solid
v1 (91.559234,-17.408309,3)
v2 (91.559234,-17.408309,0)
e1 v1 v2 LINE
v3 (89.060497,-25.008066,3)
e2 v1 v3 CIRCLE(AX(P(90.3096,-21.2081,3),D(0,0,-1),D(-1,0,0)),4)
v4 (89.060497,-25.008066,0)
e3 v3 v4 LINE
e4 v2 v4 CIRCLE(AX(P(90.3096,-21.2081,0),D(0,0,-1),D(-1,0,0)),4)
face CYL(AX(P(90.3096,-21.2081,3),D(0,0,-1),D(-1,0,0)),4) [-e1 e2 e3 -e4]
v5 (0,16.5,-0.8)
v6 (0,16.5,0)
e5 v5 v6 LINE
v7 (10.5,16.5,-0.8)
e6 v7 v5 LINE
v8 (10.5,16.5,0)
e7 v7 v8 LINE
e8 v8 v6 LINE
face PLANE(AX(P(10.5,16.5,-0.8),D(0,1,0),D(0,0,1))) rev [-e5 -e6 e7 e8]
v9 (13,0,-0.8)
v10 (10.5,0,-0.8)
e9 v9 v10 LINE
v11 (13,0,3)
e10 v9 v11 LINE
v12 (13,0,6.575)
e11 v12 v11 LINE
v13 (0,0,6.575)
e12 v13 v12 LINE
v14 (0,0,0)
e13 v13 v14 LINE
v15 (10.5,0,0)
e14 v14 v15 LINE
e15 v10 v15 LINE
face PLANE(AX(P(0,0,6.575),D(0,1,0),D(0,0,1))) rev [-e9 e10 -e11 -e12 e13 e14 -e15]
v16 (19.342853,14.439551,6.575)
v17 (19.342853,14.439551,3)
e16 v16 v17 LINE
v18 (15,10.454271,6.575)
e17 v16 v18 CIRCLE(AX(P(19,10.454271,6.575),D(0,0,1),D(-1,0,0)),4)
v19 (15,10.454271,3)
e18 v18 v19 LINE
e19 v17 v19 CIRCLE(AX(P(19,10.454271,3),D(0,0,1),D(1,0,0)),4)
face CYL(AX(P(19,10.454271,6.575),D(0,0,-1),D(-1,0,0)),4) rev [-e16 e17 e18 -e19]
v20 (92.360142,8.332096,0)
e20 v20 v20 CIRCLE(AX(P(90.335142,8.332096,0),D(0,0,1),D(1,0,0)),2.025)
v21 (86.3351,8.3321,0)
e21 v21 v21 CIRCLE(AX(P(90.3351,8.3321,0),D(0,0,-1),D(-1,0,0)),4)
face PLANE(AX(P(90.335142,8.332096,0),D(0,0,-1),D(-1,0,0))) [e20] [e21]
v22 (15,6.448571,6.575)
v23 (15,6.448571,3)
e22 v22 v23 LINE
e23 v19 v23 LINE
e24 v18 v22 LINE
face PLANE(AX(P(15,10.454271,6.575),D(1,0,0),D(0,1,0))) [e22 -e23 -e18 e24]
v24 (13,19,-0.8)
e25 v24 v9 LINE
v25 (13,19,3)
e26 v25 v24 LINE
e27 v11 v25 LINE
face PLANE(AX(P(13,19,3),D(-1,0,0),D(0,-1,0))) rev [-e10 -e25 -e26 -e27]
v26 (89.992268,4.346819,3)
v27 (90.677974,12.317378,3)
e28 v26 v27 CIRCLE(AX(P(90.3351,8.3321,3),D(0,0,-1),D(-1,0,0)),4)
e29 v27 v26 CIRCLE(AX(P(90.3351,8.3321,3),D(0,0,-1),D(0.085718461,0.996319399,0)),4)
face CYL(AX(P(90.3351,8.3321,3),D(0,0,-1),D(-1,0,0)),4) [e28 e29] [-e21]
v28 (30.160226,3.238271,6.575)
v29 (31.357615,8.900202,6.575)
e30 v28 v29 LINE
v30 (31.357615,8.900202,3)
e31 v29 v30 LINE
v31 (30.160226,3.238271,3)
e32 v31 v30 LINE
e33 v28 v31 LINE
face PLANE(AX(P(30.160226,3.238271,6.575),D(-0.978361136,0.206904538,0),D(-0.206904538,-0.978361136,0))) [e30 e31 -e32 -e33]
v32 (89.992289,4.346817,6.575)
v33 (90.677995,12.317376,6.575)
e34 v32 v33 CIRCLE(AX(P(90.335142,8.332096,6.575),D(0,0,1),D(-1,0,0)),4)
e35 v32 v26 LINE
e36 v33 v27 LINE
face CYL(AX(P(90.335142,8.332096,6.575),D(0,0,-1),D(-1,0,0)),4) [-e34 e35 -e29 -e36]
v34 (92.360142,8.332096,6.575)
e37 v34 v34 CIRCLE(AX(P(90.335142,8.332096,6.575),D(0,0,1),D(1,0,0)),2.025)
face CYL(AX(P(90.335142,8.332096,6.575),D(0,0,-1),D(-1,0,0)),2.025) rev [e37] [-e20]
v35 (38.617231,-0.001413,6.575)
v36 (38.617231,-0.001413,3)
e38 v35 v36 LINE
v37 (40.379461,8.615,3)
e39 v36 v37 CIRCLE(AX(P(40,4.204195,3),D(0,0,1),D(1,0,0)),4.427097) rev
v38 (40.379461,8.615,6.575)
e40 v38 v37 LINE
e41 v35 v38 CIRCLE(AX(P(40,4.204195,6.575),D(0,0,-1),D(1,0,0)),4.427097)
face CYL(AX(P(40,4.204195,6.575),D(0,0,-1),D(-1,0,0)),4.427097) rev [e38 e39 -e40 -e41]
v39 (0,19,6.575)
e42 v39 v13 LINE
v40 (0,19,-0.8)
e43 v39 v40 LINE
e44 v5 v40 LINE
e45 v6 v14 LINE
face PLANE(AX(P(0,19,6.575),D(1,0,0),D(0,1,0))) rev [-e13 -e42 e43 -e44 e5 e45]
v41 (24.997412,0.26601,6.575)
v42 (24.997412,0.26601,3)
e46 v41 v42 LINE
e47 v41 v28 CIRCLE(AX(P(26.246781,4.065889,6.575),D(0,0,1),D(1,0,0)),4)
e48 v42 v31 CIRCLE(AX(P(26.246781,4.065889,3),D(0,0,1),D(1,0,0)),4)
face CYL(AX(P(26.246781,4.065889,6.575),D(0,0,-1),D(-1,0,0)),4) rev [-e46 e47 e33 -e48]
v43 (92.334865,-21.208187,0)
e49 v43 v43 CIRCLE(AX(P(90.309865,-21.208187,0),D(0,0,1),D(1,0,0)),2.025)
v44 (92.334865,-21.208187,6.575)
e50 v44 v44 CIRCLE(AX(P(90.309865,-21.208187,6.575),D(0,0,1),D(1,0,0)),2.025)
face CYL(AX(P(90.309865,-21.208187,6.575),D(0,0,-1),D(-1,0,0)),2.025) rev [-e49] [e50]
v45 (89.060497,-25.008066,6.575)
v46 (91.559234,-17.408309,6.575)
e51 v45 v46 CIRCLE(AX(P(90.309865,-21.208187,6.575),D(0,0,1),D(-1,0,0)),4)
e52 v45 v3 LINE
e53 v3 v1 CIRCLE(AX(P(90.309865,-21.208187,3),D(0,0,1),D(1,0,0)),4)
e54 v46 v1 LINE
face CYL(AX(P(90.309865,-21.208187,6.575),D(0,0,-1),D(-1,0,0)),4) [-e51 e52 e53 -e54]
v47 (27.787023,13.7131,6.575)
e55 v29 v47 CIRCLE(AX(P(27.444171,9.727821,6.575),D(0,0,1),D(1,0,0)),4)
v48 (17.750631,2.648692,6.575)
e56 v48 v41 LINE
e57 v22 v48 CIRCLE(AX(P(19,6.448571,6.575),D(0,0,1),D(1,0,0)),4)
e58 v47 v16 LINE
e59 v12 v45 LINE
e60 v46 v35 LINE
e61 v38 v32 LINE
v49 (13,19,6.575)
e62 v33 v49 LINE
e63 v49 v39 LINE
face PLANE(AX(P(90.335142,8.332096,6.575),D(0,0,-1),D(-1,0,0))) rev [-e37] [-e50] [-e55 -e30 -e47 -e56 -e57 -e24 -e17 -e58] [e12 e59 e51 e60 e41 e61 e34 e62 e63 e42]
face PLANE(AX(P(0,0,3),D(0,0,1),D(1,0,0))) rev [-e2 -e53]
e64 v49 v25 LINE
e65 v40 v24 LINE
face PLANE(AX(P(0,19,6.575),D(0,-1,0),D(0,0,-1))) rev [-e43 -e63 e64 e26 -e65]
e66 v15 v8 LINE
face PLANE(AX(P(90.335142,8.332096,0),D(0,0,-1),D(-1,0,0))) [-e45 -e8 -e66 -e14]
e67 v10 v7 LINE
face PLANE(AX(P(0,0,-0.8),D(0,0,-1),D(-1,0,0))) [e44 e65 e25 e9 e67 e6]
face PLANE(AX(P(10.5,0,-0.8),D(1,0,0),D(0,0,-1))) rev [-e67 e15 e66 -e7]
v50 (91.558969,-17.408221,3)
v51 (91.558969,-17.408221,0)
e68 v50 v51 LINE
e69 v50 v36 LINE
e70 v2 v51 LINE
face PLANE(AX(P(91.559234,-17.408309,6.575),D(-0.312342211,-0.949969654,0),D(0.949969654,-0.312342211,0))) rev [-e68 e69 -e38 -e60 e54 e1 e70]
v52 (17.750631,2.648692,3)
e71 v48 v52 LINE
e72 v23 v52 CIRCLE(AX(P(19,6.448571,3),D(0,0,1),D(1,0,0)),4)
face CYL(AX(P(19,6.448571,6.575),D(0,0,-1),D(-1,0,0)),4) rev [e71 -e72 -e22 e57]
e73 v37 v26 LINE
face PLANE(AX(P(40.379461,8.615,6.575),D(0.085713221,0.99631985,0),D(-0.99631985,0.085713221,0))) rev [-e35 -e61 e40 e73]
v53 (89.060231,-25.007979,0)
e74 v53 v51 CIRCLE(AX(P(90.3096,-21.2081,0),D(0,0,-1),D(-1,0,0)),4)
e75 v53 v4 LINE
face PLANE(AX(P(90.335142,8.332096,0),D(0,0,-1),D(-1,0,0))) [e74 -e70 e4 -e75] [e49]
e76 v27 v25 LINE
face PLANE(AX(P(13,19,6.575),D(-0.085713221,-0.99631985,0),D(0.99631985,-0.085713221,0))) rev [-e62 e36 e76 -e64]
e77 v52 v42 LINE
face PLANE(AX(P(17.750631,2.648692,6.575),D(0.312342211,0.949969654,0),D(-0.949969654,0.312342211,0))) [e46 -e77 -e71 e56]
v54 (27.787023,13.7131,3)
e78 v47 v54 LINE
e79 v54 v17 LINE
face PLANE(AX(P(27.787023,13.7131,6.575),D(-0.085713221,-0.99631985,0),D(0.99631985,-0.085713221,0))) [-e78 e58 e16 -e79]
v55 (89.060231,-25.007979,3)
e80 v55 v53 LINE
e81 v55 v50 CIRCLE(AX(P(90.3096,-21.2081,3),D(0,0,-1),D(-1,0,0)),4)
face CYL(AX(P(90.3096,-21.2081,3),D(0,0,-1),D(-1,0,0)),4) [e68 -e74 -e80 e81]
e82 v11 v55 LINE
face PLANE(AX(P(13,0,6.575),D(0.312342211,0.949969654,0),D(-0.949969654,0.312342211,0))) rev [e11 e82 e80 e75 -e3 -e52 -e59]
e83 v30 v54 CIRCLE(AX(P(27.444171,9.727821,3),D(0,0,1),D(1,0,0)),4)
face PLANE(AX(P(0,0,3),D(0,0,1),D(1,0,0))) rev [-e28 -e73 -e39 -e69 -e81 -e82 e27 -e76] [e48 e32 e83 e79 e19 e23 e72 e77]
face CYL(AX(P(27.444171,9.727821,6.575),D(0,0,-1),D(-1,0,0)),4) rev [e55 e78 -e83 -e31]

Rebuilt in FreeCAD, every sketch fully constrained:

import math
import FreeCAD as App
import Part
import Sketcher
from FreeCAD import Vector
Q = App.Units.Quantity

doc = App.newDocument("Part")
body = doc.addObject("PartDesign::Body", "Body")

# Sketch on XY plane
sketch1 = body.newObject("Sketcher::SketchObject", "Sketch")
sketch1.AttachmentSupport = (doc.getObject("XY_Plane"), [""])
sketch1.MapMode = "FlatFace"
sketch1.addGeometry(Part.LineSegment(Vector(0, 19, 0), Vector(0, 0, 0)), False)
sketch1.addGeometry(Part.LineSegment(Vector(0, 0, 0), Vector(13, 0, 0)), False)
sketch1.addGeometry(Part.LineSegment(Vector(13, 0, 0), Vector(89.1, -25, 0)), False)
sketch1.addGeometry(Part.ArcOfCircle(Part.Circle(Vector(90.3, -21.2, 0), Vector(0, 0, 1), 4), math.radians(-108), math.radians(72)), False)
sketch1.addGeometry(Part.LineSegment(Vector(91.6, -17.4, 0), Vector(38.6, 0, 0)), False)
sketch1.addGeometry(Part.ArcOfCircle(Part.Circle(Vector(40, 4.2, 0), Vector(0, 0, 1), 4.4), math.radians(85), math.radians(252)), False)
sketch1.addGeometry(Part.LineSegment(Vector(40.4, 8.6, 0), Vector(90, 4.3, 0)), False)
sketch1.addGeometry(Part.ArcOfCircle(Part.Circle(Vector(90.3, 8.3, 0), Vector(0, 0, 1), 4), math.radians(-95), math.radians(85)), False)
sketch1.addGeometry(Part.LineSegment(Vector(90.7, 12.3, 0), Vector(13, 19, 0)), False)
sketch1.addGeometry(Part.LineSegment(Vector(13, 19, 0), Vector(0, 19, 0)), False)
sketch1.addGeometry(Part.Circle(Vector(90.3, -21.2, 0), Vector(0, 0, 1), 2), False)
sketch1.addGeometry(Part.LineSegment(Vector(15, 6.4, 0), Vector(15, 10.5, 0)), False)
sketch1.addGeometry(Part.ArcOfCircle(Part.Circle(Vector(19, 10.5, 0), Vector(0, 0, 1), 4), math.radians(85), math.radians(180)), False)
sketch1.addGeometry(Part.LineSegment(Vector(19.3, 14.4, 0), Vector(27.8, 13.7, 0)), False)
sketch1.addGeometry(Part.ArcOfCircle(Part.Circle(Vector(27.4, 9.7, 0), Vector(0, 0, 1), 4), math.radians(-12), math.radians(85)), False)
sketch1.addGeometry(Part.LineSegment(Vector(31.4, 8.9, 0), Vector(30.2, 3.2, 0)), False)
sketch1.addGeometry(Part.ArcOfCircle(Part.Circle(Vector(26.2, 4.1, 0), Vector(0, 0, 1), 4), math.radians(-108), math.radians(-12)), False)
sketch1.addGeometry(Part.LineSegment(Vector(25, 0.3, 0), Vector(17.8, 2.6, 0)), False)
sketch1.addGeometry(Part.ArcOfCircle(Part.Circle(Vector(19, 6.4, 0), Vector(0, 0, 1), 4), math.radians(180), math.radians(252)), False)
sketch1.addGeometry(Part.Circle(Vector(90.3, 8.3, 0), Vector(0, 0, 1), 2), False)
sketch1.addConstraint(Sketcher.Constraint("Coincident", 0, 2, 1, 1))
sketch1.addConstraint(Sketcher.Constraint("Coincident", 1, 2, 2, 1))
sketch1.addConstraint(Sketcher.Constraint("Tangent", 2, 2, 3, 1))
sketch1.addConstraint(Sketcher.Constraint("Tangent", 3, 2, 4, 1))
sketch1.addConstraint(Sketcher.Constraint("Tangent", 4, 2, 5, 2))
sketch1.addConstraint(Sketcher.Constraint("Tangent", 5, 1, 6, 1))
sketch1.addConstraint(Sketcher.Constraint("Tangent", 6, 2, 7, 1))
sketch1.addConstraint(Sketcher.Constraint("Tangent", 7, 2, 8, 1))
sketch1.addConstraint(Sketcher.Constraint("Coincident", 8, 2, 9, 1))
sketch1.addConstraint(Sketcher.Constraint("Coincident", 9, 2, 0, 1))
sketch1.addConstraint(Sketcher.Constraint("Tangent", 11, 2, 12, 2))
sketch1.addConstraint(Sketcher.Constraint("Tangent", 12, 1, 13, 1))
sketch1.addConstraint(Sketcher.Constraint("Tangent", 13, 2, 14, 2))
sketch1.addConstraint(Sketcher.Constraint("Tangent", 14, 1, 15, 1))
sketch1.addConstraint(Sketcher.Constraint("Tangent", 15, 2, 16, 2))
sketch1.addConstraint(Sketcher.Constraint("Tangent", 16, 1, 17, 1))
sketch1.addConstraint(Sketcher.Constraint("Tangent", 17, 2, 18, 2))
sketch1.addConstraint(Sketcher.Constraint("Tangent", 18, 1, 11, 1))
sketch1.addConstraint(Sketcher.Constraint("Vertical", 0))
sketch1.addConstraint(Sketcher.Constraint("Horizontal", 1))
sketch1.addConstraint(Sketcher.Constraint("Horizontal", 9))
sketch1.addConstraint(Sketcher.Constraint("Vertical", 11))
sketch1.addConstraint(Sketcher.Constraint("Coincident", 0, 2, -1, 1))
sketch1.addConstraint(Sketcher.Constraint("Coincident", 10, 3, 3, 3))
sketch1.addConstraint(Sketcher.Constraint("Coincident", 19, 3, 7, 3))
sketch1.addConstraint(Sketcher.Constraint("Equal", 3, 7))
sketch1.addConstraint(Sketcher.Constraint("Equal", 7, 12))
sketch1.addConstraint(Sketcher.Constraint("Equal", 12, 14))
sketch1.addConstraint(Sketcher.Constraint("Equal", 14, 16))
sketch1.addConstraint(Sketcher.Constraint("Equal", 16, 18))
sketch1.addConstraint(Sketcher.Constraint("Equal", 10, 19))
sketch1.addConstraint(Sketcher.Constraint("Parallel", 2, 4))
sketch1.addConstraint(Sketcher.Constraint("Parallel", 6, 8))
sketch1.addConstraint(Sketcher.Constraint("Parallel", 8, 13))
sketch1.addConstraint(Sketcher.Constraint("Parallel", 4, 17))
sketch1.addConstraint(Sketcher.Constraint("Vertical", 1, 2, 8, 2))
sketch1.addConstraint(Sketcher.Constraint("Radius", 3, Q("4 mm")))
sketch1.addConstraint(Sketcher.Constraint("Diameter", 10, Q("4.05 mm")))
sketch1.addConstraint(Sketcher.Constraint("DistanceX", 1, 1, 1, 2, Q("13 mm")))
sketch1.addConstraint(Sketcher.Constraint("DistanceY", 0, 2, 0, 1, Q("19 mm")))
sketch1.addConstraint(Sketcher.Constraint("DistanceX", -1, 1, 5, 3, Q("40 mm")))
sketch1.addConstraint(Sketcher.Constraint("DistanceX", -1, 1, 12, 3, Q("19 mm")))
sketch1.addConstraint(Sketcher.Constraint("DistanceY", 11, 1, 11, 2, Q("4.0057 mm")))
sketch1.addConstraint(Sketcher.Constraint("DistanceY", -1, 1, 5, 1, Q("8.615 mm")))
sketch1.addConstraint(Sketcher.Constraint("Radius", 5, Q("4.427097 mm")))
sketch1.addConstraint(Sketcher.Constraint("DistanceY", -1, 1, 13, 2, Q("13.7131 mm")))
sketch1.addConstraint(Sketcher.Constraint("DistanceY", 5, 3, 7, 3, Q("4.127901 mm")))
sketch1.addConstraint(Sketcher.Constraint("Distance", 2, Q("80.066238 mm")))
sketch1.addConstraint(Sketcher.Constraint("Distance", 13, Q("8.475361 mm")))
sketch1.addConstraint(Sketcher.Constraint("Distance", 15, Q("5.787159 mm")))
pad1 = body.newObject("PartDesign::Pad", "Pad")
pad1.Profile = sketch1
pad1.Length = 6.575

# Sketch on XY plane
sketch2 = body.newObject("Sketcher::SketchObject", "Sketch001")
sketch2.AttachmentSupport = (doc.getObject("XY_Plane"), [""])
sketch2.MapMode = "FlatFace"
sketch2.addGeometry(Part.LineSegment(Vector(98, 19, 0), Vector(98, -26, 0)), False)
sketch2.addGeometry(Part.LineSegment(Vector(98, -26, 0), Vector(13, -26, 0)), False)
sketch2.addGeometry(Part.LineSegment(Vector(13, -26, 0), Vector(13, 19, 0)), False)
sketch2.addGeometry(Part.LineSegment(Vector(13, 19, 0), Vector(98, 19, 0)), False)
sketch2.addGeometry(Part.Circle(Vector(90.3, -21.2, 0), Vector(0, 0, 1), 4), False)
sketch2.addGeometry(Part.Circle(Vector(90.3, 8.3, 0), Vector(0, 0, 1), 4), False)
sketch2.addConstraint(Sketcher.Constraint("Coincident", 0, 2, 1, 1))
sketch2.addConstraint(Sketcher.Constraint("Coincident", 1, 2, 2, 1))
sketch2.addConstraint(Sketcher.Constraint("Coincident", 2, 2, 3, 1))
sketch2.addConstraint(Sketcher.Constraint("Coincident", 3, 2, 0, 1))
sketch2.addConstraint(Sketcher.Constraint("Vertical", 0))
sketch2.addConstraint(Sketcher.Constraint("Horizontal", 1))
sketch2.addConstraint(Sketcher.Constraint("Vertical", 2))
sketch2.addConstraint(Sketcher.Constraint("Horizontal", 3))
sketch2.addConstraint(Sketcher.Constraint("Equal", 4, 5))
sketch2.addConstraint(Sketcher.Constraint("Diameter", 4, Q("8 mm")))
sketch2.addConstraint(Sketcher.Constraint("DistanceX", 1, 2, 1, 1, Q("85 mm")))
sketch2.addConstraint(Sketcher.Constraint("DistanceY", 0, 2, 0, 1, Q("45 mm")))
sketch2.addConstraint(Sketcher.Constraint("DistanceX", -1, 1, 0, 2, Q("98 mm")))
sketch2.addConstraint(Sketcher.Constraint("DistanceY", 0, 2, -1, 1, Q("26 mm")))
sketch2.addConstraint(Sketcher.Constraint("DistanceX", -1, 1, 4, 3, Q("90.3096 mm")))
sketch2.addConstraint(Sketcher.Constraint("DistanceY", 4, 3, -1, 1, Q("21.2081 mm")))
sketch2.addConstraint(Sketcher.Constraint("DistanceX", -1, 1, 5, 3, Q("90.3351 mm")))
sketch2.addConstraint(Sketcher.Constraint("DistanceY", -1, 1, 5, 3, Q("8.3321 mm")))
pocket1 = body.newObject("PartDesign::Pocket", "Pocket")
pocket1.Profile = sketch2
pocket1.Length = 3
pocket1.Reversed = True

# Sketch on XY plane
sketch3 = body.newObject("Sketcher::SketchObject", "Sketch002")
sketch3.AttachmentSupport = (doc.getObject("XY_Plane"), [""])
sketch3.MapMode = "FlatFace"
sketch3.addGeometry(Part.LineSegment(Vector(0, 19, 0), Vector(13, 19, 0)), False)
sketch3.addGeometry(Part.LineSegment(Vector(13, 19, 0), Vector(13, 0, 0)), False)
sketch3.addGeometry(Part.LineSegment(Vector(13, 0, 0), Vector(10.5, 0, 0)), False)
sketch3.addGeometry(Part.LineSegment(Vector(10.5, 0, 0), Vector(10.5, 16.5, 0)), False)
sketch3.addGeometry(Part.LineSegment(Vector(10.5, 16.5, 0), Vector(0, 16.5, 0)), False)
sketch3.addGeometry(Part.LineSegment(Vector(0, 16.5, 0), Vector(0, 19, 0)), False)
sketch3.addConstraint(Sketcher.Constraint("Coincident", 0, 2, 1, 1))
sketch3.addConstraint(Sketcher.Constraint("Coincident", 1, 2, 2, 1))
sketch3.addConstraint(Sketcher.Constraint("Coincident", 2, 2, 3, 1))
sketch3.addConstraint(Sketcher.Constraint("Coincident", 3, 2, 4, 1))
sketch3.addConstraint(Sketcher.Constraint("Coincident", 4, 2, 5, 1))
sketch3.addConstraint(Sketcher.Constraint("Coincident", 5, 2, 0, 1))
sketch3.addConstraint(Sketcher.Constraint("Horizontal", 0))
sketch3.addConstraint(Sketcher.Constraint("Vertical", 1))
sketch3.addConstraint(Sketcher.Constraint("Horizontal", 2))
sketch3.addConstraint(Sketcher.Constraint("Vertical", 3))
sketch3.addConstraint(Sketcher.Constraint("Horizontal", 4))
sketch3.addConstraint(Sketcher.Constraint("Vertical", 5))
sketch3.addConstraint(Sketcher.Constraint("PointOnObject", 1, 2, -1))
sketch3.addConstraint(Sketcher.Constraint("PointOnObject", 4, 2, -2))
sketch3.addConstraint(Sketcher.Constraint("Equal", 2, 5))
sketch3.addConstraint(Sketcher.Constraint("DistanceX", 0, 1, 0, 2, Q("13 mm")))
sketch3.addConstraint(Sketcher.Constraint("DistanceY", 1, 2, 1, 1, Q("19 mm")))
sketch3.addConstraint(Sketcher.Constraint("DistanceX", 2, 2, 2, 1, Q("2.5 mm")))
pad2 = body.newObject("PartDesign::Pad", "Pad001")
pad2.Profile = sketch3
pad2.Length = 0.8
pad2.Reversed = True

doc.recompute()
